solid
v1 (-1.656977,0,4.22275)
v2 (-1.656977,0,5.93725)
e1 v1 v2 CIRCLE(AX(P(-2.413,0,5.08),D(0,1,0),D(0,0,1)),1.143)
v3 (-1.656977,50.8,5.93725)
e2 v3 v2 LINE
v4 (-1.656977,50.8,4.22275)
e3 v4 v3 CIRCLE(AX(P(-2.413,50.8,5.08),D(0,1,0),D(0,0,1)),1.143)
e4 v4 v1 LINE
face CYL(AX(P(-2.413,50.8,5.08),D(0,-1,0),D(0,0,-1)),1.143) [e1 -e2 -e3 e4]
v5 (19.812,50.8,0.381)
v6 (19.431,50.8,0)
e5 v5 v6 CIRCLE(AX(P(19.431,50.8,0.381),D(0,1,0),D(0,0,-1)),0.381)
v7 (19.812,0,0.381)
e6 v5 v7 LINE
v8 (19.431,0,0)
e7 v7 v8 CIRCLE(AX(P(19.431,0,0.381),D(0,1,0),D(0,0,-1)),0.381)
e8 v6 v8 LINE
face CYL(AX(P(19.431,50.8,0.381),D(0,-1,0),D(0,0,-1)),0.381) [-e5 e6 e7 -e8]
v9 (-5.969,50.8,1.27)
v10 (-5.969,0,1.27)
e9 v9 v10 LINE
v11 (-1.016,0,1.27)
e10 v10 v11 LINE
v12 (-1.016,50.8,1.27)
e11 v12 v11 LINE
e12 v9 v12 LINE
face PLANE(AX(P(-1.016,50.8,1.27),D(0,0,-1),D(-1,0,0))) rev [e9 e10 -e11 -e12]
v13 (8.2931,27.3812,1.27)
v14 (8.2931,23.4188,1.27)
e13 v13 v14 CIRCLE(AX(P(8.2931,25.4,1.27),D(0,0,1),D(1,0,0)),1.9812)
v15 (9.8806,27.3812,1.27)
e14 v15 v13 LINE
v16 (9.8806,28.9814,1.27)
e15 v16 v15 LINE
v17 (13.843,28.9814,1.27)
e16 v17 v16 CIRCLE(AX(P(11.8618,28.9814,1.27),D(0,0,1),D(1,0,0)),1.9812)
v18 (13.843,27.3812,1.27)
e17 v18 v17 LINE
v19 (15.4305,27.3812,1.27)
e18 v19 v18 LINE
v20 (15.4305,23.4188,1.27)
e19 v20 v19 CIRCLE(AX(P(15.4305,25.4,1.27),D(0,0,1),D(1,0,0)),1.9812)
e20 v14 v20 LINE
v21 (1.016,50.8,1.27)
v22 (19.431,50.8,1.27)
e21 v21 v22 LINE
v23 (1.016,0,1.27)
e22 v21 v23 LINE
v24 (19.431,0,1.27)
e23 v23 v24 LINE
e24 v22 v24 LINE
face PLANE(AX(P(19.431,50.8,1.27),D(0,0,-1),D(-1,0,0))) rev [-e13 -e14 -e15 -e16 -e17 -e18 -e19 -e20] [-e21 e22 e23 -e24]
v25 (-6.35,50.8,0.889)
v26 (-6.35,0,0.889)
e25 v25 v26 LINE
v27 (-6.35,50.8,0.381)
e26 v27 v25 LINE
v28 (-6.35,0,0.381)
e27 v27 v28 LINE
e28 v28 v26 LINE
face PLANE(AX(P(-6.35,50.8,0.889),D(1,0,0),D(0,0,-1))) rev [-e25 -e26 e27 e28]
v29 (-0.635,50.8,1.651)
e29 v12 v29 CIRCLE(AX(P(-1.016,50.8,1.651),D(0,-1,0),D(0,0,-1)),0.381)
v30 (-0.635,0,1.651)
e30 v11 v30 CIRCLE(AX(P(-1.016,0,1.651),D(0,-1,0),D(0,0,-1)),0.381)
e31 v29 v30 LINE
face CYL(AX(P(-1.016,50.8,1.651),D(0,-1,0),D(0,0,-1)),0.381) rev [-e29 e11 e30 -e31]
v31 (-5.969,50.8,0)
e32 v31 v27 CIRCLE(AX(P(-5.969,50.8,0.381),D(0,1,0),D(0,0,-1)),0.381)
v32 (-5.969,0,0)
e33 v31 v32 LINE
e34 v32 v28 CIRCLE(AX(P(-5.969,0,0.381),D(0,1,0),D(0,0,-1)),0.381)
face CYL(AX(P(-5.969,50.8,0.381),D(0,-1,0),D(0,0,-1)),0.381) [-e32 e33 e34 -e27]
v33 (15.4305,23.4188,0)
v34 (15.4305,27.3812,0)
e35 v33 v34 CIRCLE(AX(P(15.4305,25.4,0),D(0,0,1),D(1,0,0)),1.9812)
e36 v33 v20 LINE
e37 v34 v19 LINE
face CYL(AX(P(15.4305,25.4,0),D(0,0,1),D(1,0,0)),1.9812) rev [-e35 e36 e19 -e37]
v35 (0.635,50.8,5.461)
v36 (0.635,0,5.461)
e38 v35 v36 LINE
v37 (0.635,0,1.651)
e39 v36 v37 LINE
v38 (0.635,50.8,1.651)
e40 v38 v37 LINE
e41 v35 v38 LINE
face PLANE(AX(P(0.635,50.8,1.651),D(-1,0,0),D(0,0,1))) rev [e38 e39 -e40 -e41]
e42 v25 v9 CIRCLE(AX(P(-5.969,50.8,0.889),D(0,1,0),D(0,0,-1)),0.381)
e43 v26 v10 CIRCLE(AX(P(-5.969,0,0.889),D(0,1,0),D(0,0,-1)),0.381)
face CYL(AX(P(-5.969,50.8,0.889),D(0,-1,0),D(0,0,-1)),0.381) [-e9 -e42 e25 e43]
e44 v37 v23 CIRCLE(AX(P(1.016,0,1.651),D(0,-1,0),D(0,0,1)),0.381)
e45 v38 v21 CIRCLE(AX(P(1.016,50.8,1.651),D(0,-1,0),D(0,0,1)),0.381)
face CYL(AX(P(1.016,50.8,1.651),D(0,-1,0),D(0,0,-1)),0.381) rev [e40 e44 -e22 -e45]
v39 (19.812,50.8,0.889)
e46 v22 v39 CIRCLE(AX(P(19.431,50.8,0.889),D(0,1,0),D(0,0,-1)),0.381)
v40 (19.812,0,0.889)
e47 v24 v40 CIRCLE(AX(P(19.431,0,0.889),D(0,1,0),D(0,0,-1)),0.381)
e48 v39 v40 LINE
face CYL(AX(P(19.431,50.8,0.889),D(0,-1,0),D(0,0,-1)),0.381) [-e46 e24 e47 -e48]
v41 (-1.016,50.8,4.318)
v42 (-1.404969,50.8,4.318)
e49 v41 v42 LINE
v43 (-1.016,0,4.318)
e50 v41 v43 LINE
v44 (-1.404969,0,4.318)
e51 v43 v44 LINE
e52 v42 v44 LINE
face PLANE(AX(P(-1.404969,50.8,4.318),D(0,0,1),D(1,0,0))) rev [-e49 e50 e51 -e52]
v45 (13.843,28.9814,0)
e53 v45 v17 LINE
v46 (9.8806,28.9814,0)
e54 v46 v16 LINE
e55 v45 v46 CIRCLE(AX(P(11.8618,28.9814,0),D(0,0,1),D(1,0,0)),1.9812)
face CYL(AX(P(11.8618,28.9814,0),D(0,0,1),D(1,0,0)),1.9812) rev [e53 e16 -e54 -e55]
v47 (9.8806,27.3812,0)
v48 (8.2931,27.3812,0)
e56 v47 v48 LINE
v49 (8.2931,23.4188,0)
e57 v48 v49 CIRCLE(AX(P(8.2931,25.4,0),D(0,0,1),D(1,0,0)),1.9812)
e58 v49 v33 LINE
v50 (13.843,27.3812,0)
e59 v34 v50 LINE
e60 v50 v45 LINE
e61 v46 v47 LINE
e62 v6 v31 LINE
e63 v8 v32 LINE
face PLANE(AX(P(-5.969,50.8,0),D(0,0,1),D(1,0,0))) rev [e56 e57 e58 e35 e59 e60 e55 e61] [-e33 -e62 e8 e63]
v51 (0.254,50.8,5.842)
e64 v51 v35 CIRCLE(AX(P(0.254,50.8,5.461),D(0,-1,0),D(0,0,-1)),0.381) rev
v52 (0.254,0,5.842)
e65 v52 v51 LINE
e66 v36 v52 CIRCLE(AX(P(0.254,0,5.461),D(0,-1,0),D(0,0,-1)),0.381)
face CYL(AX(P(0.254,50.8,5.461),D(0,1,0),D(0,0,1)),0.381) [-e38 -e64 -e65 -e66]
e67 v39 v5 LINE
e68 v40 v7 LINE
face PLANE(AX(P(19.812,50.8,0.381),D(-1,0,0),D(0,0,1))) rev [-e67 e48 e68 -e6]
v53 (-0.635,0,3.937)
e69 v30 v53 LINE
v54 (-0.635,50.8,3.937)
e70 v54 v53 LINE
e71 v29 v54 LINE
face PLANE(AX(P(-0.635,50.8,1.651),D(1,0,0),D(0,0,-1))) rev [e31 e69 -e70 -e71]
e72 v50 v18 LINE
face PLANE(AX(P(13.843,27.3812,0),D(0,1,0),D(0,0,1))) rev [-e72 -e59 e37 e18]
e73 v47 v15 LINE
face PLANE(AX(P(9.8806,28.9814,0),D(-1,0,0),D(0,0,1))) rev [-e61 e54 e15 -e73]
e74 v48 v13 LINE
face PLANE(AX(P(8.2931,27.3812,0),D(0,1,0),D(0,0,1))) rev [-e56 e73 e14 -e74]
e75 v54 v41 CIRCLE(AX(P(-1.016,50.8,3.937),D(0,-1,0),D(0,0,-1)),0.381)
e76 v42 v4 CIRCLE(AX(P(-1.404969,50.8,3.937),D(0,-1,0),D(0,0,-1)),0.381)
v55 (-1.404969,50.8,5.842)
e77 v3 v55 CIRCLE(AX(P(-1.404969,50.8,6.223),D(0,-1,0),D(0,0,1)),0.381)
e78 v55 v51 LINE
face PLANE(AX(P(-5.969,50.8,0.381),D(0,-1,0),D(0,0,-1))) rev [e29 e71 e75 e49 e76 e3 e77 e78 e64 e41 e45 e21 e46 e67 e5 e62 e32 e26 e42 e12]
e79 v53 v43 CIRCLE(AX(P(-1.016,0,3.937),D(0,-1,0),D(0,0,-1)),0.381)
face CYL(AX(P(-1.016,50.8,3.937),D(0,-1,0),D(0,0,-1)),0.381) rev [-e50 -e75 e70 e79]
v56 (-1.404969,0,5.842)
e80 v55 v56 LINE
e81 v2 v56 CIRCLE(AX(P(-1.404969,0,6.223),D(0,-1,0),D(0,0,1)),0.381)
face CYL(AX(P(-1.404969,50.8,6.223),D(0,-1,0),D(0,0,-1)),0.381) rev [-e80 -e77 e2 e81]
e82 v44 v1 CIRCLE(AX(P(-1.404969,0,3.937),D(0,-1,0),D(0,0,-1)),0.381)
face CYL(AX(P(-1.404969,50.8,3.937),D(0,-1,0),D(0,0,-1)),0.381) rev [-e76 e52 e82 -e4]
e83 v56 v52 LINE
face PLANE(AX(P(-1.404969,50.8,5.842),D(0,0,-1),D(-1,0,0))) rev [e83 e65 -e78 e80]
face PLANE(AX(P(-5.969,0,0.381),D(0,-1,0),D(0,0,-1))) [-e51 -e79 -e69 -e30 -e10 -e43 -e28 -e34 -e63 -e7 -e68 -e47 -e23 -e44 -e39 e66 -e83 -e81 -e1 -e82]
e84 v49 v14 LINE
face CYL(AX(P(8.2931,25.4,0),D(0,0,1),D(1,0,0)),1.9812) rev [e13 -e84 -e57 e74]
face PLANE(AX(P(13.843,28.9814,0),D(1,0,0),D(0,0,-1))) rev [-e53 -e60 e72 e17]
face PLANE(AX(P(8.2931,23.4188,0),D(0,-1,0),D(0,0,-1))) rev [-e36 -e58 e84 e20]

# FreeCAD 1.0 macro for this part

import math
import FreeCAD as App
import Part
import Sketcher
from FreeCAD import Vector
Q = App.Units.Quantity


def edges_at(feature, points):
    """Names of the edges that pass closest to the given points."""
    edges = feature.Shape.Edges
    near = lambda p: min(range(len(edges)), key=lambda i: edges[i].distToShape(Part.Vertex(*p))[0])
    return sorted({f"Edge{near(p) + 1}" for p in points})


def add_polygon(sketch, points):
    """Adds a closed chain of lines whose ends are joined by coincident constraints."""
    first, n = sketch.GeometryCount, len(points)
    for a, b in zip(points, points[1:] + points[:1]):
        sketch.addGeometry(Part.LineSegment(App.Vector(*a, 0), App.Vector(*b, 0)), False)
    for i in range(n):
        sketch.addConstraint(Sketcher.Constraint("Coincident", first + i, 2, first + (i + 1) % n, 1))

doc = App.newDocument("Part")
body = doc.addObject("PartDesign::Body", "Body")

# Sketch on XZ plane
sketch1 = body.newObject("Sketcher::SketchObject", "Sketch")
sketch1.AttachmentSupport = (doc.getObject("XZ_Plane"), [""])
sketch1.MapMode = "FlatFace"
sketch1.addGeometry(Part.LineSegment(Vector(19.431, 0, 0), Vector(-5.969, 0, 0)), False)
sketch1.addGeometry(Part.ArcOfCircle(Part.Circle(Vector(-5.969, 0.381, 0), Vector(0, 0, 1), 0.381), math.radians(180), math.radians(270)), False)
sketch1.addGeometry(Part.LineSegment(Vector(-6.35, 0.381, 0), Vector(-6.35, 0.889, 0)), False)
sketch1.addGeometry(Part.ArcOfCircle(Part.Circle(Vector(-5.969, 0.889, 0), Vector(0, 0, 1), 0.381), math.radians(90), math.radians(180)), False)
sketch1.addGeometry(Part.LineSegment(Vector(-5.969, 1.27, 0), Vector(-1.016, 1.27, 0)), False)
sketch1.addGeometry(Part.ArcOfCircle(Part.Circle(Vector(-1.016, 1.651, 0), Vector(0, 0, 1), 0.381), math.radians(-90), math.radians(0)), False)
sketch1.addGeometry(Part.LineSegment(Vector(-0.635, 1.651, 0), Vector(-0.635, 3.937, 0)), False)
sketch1.addGeometry(Part.ArcOfCircle(Part.Circle(Vector(-1.016, 3.937, 0), Vector(0, 0, 1), 0.381), math.radians(0), math.radians(90)), False)
sketch1.addGeometry(Part.LineSegment(Vector(-1.016, 4.318, 0), Vector(-1.404969, 4.318, 0)), False)
sketch1.addGeometry(Part.ArcOfCircle(Part.Circle(Vector(-1.404969, 3.937, 0), Vector(0, 0, 1), 0.381), math.radians(90), math.radians(131.409622)), False)
sketch1.addGeometry(Part.ArcOfCircle(Part.Circle(Vector(-2.413, 5.08, 0), Vector(0, 0, 1), 1.143), math.radians(48.590378), math.radians(311.409622)), False)
sketch1.addGeometry(Part.ArcOfCircle(Part.Circle(Vector(-1.404969, 6.223, 0), Vector(0, 0, 1), 0.381), math.radians(-131.409622), math.radians(-90)), False)
sketch1.addGeometry(Part.LineSegment(Vector(-1.404969, 5.842, 0), Vector(1.404969, 5.842, 0)), False)
sketch1.addGeometry(Part.ArcOfCircle(Part.Circle(Vector(1.404969, 6.223, 0), Vector(0, 0, 1), 0.381), math.radians(-90), math.radians(-48.590378)), False)
sketch1.addGeometry(Part.ArcOfCircle(Part.Circle(Vector(2.413, 5.08, 0), Vector(0, 0, 1), 1.143), math.radians(-131.409622), math.radians(131.409622)), False)
sketch1.addGeometry(Part.ArcOfCircle(Part.Circle(Vector(1.404969, 3.937, 0), Vector(0, 0, 1), 0.381), math.radians(48.590378), math.radians(90)), False)
sketch1.addGeometry(Part.LineSegment(Vector(1.404969, 4.318, 0), Vector(1.016, 4.318, 0)), False)
sketch1.addGeometry(Part.ArcOfCircle(Part.Circle(Vector(1.016, 3.937, 0), Vector(0, 0, 1), 0.381), math.radians(90), math.radians(180)), False)
sketch1.addGeometry(Part.LineSegment(Vector(0.635, 3.937, 0), Vector(0.635, 1.651, 0)), False)
sketch1.addGeometry(Part.ArcOfCircle(Part.Circle(Vector(1.016, 1.651, 0), Vector(0, 0, 1), 0.381), math.radians(180), math.radians(270)), False)
sketch1.addGeometry(Part.LineSegment(Vector(1.016, 1.27, 0), Vector(19.431, 1.27, 0)), False)
sketch1.addGeometry(Part.ArcOfCircle(Part.Circle(Vector(19.431, 0.889, 0), Vector(0, 0, 1), 0.381), math.radians(0), math.radians(90)), False)
sketch1.addGeometry(Part.LineSegment(Vector(19.812, 0.889, 0), Vector(19.812, 0.381, 0)), False)
sketch1.addGeometry(Part.ArcOfCircle(Part.Circle(Vector(19.431, 0.381, 0), Vector(0, 0, 1), 0.381), math.radians(-90), math.radians(0)), False)
sketch1.addConstraint(Sketcher.Constraint("Tangent", 0, 2, 1, 2))
sketch1.addConstraint(Sketcher.Constraint("Tangent", 1, 1, 2, 1))
sketch1.addConstraint(Sketcher.Constraint("Tangent", 2, 2, 3, 2))
sketch1.addConstraint(Sketcher.Constraint("Tangent", 3, 1, 4, 1))
sketch1.addConstraint(Sketcher.Constraint("Tangent", 4, 2, 5, 1))
sketch1.addConstraint(Sketcher.Constraint("Tangent", 5, 2, 6, 1))
sketch1.addConstraint(Sketcher.Constraint("Tangent", 6, 2, 7, 1))
sketch1.addConstraint(Sketcher.Constraint("Tangent", 7, 2, 8, 1))
sketch1.addConstraint(Sketcher.Constraint("Tangent", 8, 2, 9, 1))
sketch1.addConstraint(Sketcher.Constraint("Tangent", 9, 2, 10, 2))
sketch1.addConstraint(Sketcher.Constraint("Tangent", 10, 1, 11, 1))
sketch1.addConstraint(Sketcher.Constraint("Tangent", 11, 2, 12, 1))
sketch1.addConstraint(Sketcher.Constraint("Tangent", 12, 2, 13, 1))
sketch1.addConstraint(Sketcher.Constraint("Tangent", 13, 2, 14, 2))
sketch1.addConstraint(Sketcher.Constraint("Tangent", 14, 1, 15, 1))
sketch1.addConstraint(Sketcher.Constraint("Tangent", 15, 2, 16, 1))
sketch1.addConstraint(Sketcher.Constraint("Tangent", 16, 2, 17, 1))
sketch1.addConstraint(Sketcher.Constraint("Tangent", 17, 2, 18, 1))
sketch1.addConstraint(Sketcher.Constraint("Tangent", 18, 2, 19, 1))
sketch1.addConstraint(Sketcher.Constraint("Tangent", 19, 2, 20, 1))
sketch1.addConstraint(Sketcher.Constraint("Tangent", 20, 2, 21, 2))
sketch1.addConstraint(Sketcher.Constraint("Tangent", 21, 1, 22, 1))
sketch1.addConstraint(Sketcher.Constraint("Tangent", 22, 2, 23, 2))
sketch1.addConstraint(Sketcher.Constraint("Tangent", 23, 1, 0, 1))
sketch1.addConstraint(Sketcher.Constraint("Horizontal", 0))
sketch1.addConstraint(Sketcher.Constraint("Vertical", 2))
sketch1.addConstraint(Sketcher.Constraint("Horizontal", 4))
sketch1.addConstraint(Sketcher.Constraint("Vertical", 6))
sketch1.addConstraint(Sketcher.Constraint("Horizontal", 8))
sketch1.addConstraint(Sketcher.Constraint("Horizontal", 12))
sketch1.addConstraint(Sketcher.Constraint("Horizontal", 16))
sketch1.addConstraint(Sketcher.Constraint("Vertical", 18))
sketch1.addConstraint(Sketcher.Constraint("Horizontal", 20))
sketch1.addConstraint(Sketcher.Constraint("Vertical", 22))
sketch1.addConstraint(Sketcher.Constraint("Equal", 1, 3))
sketch1.addConstraint(Sketcher.Constraint("Equal", 3, 5))
sketch1.addConstraint(Sketcher.Constraint("Equal", 5, 7))
sketch1.addConstraint(Sketcher.Constraint("Equal", 7, 9))
sketch1.addConstraint(Sketcher.Constraint("Equal", 9, 11))
sketch1.addConstraint(Sketcher.Constraint("Equal", 11, 13))
sketch1.addConstraint(Sketcher.Constraint("Equal", 10, 14))
sketch1.addConstraint(Sketcher.Constraint("Equal", 13, 15))
sketch1.addConstraint(Sketcher.Constraint("Equal", 15, 17))
sketch1.addConstraint(Sketcher.Constraint("Equal", 17, 19))
sketch1.addConstraint(Sketcher.Constraint("Equal", 19, 21))
sketch1.addConstraint(Sketcher.Constraint("Equal", 21, 23))
sketch1.addConstraint(Sketcher.Constraint("Symmetric", 10, 3, 14, 3, -2))
sketch1.addConstraint(Sketcher.Constraint("Symmetric", 7, 3, 17, 3, -2))
sketch1.addConstraint(Sketcher.Constraint("PointOnObject", 0, 2, -1))
sketch1.addConstraint(Sketcher.Constraint("Horizontal", 5, 3, 19, 3))
sketch1.addConstraint(Sketcher.Constraint("Vertical", 9, 3, 11, 3))
sketch1.addConstraint(Sketcher.Constraint("DistanceX", 0, 2, 0, 1, Q("1 in")))
sketch1.addConstraint(Sketcher.Constraint("Radius", 1, Q("0.015 in")))
sketch1.addConstraint(Sketcher.Constraint("Radius", 10, Q("0.045 in")))
sketch1.addConstraint(Sketcher.Constraint("DistanceY", 2, 1, 2, 2, Q("0.02 in")))
sketch1.addConstraint(Sketcher.Constraint("DistanceY", 6, 1, 6, 2, Q("0.09 in")))
sketch1.addConstraint(Sketcher.Constraint("DistanceY", -1, 1, 10, 3, Q("0.2 in")))
sketch1.addConstraint(Sketcher.Constraint("DistanceX", 4, 1, 4, 2, Q("0.195 in")))
sketch1.addConstraint(Sketcher.Constraint("DistanceX", 20, 1, 20, 2, Q("0.725 in")))
sketch1.addConstraint(Sketcher.Constraint("DistanceX", 3, 3, 10, 3, Q("0.14 in")))
pad1 = body.newObject("PartDesign::Pad", "Pad")
pad1.Profile = sketch1
pad1.Length = Q("2 in")
pad1.Reversed = True

# Sketch on XZ plane
sketch2 = body.newObject("Sketcher::SketchObject", "Sketch001")
sketch2.AttachmentSupport = (doc.getObject("XZ_Plane"), [""])
sketch2.MapMode = "FlatFace"
add_polygon(sketch2, [(0.635, 6.223), (0.635, 1.651), (3.556, 1.651), (3.556, 6.223)])  # lines 0-3
sketch2.addConstraint(Sketcher.Constraint("Vertical", 0))
sketch2.addConstraint(Sketcher.Constraint("Horizontal", 1))
sketch2.addConstraint(Sketcher.Constraint("Vertical", 2))
sketch2.addConstraint(Sketcher.Constraint("Horizontal", 3))
sketch2.addConstraint(Sketcher.Constraint("DistanceY", 0, 2, 0, 1, Q("0.18 in")))
sketch2.addConstraint(Sketcher.Constraint("DistanceX", 1, 1, 1, 2, Q("0.115 in")))
sketch2.addConstraint(Sketcher.Constraint("DistanceX", -1, 1, 1, 2, Q("0.14 in")))
sketch2.addConstraint(Sketcher.Constraint("DistanceY", -1, 1, 0, 2, Q("0.065 in")))
pocket1 = body.newObject("PartDesign::Pocket", "Pocket")
pocket1.Profile = sketch2
pocket1.Type = "ThroughAll"
doc.recompute()

fillet = body.newObject("PartDesign::Fillet", "Fillet")
fillet.Base = (pocket1, edges_at(pocket1, [(0.635, 25.4, 5.842)]))
fillet.Radius = Q("0.015 in")

# Sketch on XY plane
sketch3 = body.newObject("Sketcher::SketchObject", "Sketch002")
sketch3.AttachmentSupport = (doc.getObject("XY_Plane"), [""])
sketch3.MapMode = "FlatFace"
sketch3.AttachmentOffset = App.Placement(Vector(0, 0, 0.05 * 25.4), App.Rotation())
sketch3.addGeometry(Part.LineSegment(Vector(9.8806, 27.3812, 0), Vector(8.2931, 27.3812, 0)), False)
sketch3.addGeometry(Part.ArcOfCircle(Part.Circle(Vector(8.2931, 25.4, 0), Vector(0, 0, 1), 1.9812), math.radians(90), math.radians(270)), False)
sketch3.addGeometry(Part.LineSegment(Vector(8.2931, 23.4188, 0), Vector(15.4305, 23.4188, 0)), False)
sketch3.addGeometry(Part.ArcOfCircle(Part.Circle(Vector(15.4305, 25.4, 0), Vector(0, 0, 1), 1.9812), math.radians(-90), math.radians(90)), False)
sketch3.addGeometry(Part.LineSegment(Vector(15.4305, 27.3812, 0), Vector(13.843, 27.3812, 0)), False)
sketch3.addGeometry(Part.LineSegment(Vector(13.843, 27.3812, 0), Vector(13.843, 28.9814, 0)), False)
sketch3.addGeometry(Part.ArcOfCircle(Part.Circle(Vector(11.8618, 28.9814, 0), Vector(0, 0, 1), 1.9812), math.radians(0), math.radians(180)), False)
sketch3.addGeometry(Part.LineSegment(Vector(9.8806, 28.9814, 0), Vector(9.8806, 27.3812, 0)), False)
sketch3.addConstraint(Sketcher.Constraint("Tangent", 0, 2, 1, 1))
sketch3.addConstraint(Sketcher.Constraint("Tangent", 1, 2, 2, 1))
sketch3.addConstraint(Sketcher.Constraint("Tangent", 2, 2, 3, 1))
sketch3.addConstraint(Sketcher.Constraint("Tangent", 3, 2, 4, 1))
sketch3.addConstraint(Sketcher.Constraint("Coincident", 4, 2, 5, 1))
sketch3.addConstraint(Sketcher.Constraint("Tangent", 5, 2, 6, 1))
sketch3.addConstraint(Sketcher.Constraint("Tangent", 6, 2, 7, 1))
sketch3.addConstraint(Sketcher.Constraint("Coincident", 7, 2, 0, 1))
sketch3.addConstraint(Sketcher.Constraint("Horizontal", 0))
sketch3.addConstraint(Sketcher.Constraint("Horizontal", 2))
sketch3.addConstraint(Sketcher.Constraint("Horizontal", 4))
sketch3.addConstraint(Sketcher.Constraint("Vertical", 5))
sketch3.addConstraint(Sketcher.Constraint("Vertical", 7))
sketch3.addConstraint(Sketcher.Constraint("Equal", 1, 3))
sketch3.addConstraint(Sketcher.Constraint("Equal", 3, 6))
sketch3.addConstraint(Sketcher.Constraint("Equal", 0, 4))
sketch3.addConstraint(Sketcher.Constraint("DistanceY", -1, 1, 1, 3, Q("1 in")))
sketch3.addConstraint(Sketcher.Constraint("Radius", 1, Q("0.078 in")))
sketch3.addConstraint(Sketcher.Constraint("DistanceX", 0, 2, 0, 1, Q("0.0625 in")))
sketch3.addConstraint(Sketcher.Constraint("DistanceY", 5, 1, 5, 2, Q("0.063 in")))
sketch3.addConstraint(Sketcher.Constraint("DistanceX", -1, 1, 6, 3, Q("0.467 in")))
pocket2 = body.newObject("PartDesign::Pocket", "Pocket001")
pocket2.Profile = sketch3
pocket2.Type = "ThroughAll"

doc.recompute()
